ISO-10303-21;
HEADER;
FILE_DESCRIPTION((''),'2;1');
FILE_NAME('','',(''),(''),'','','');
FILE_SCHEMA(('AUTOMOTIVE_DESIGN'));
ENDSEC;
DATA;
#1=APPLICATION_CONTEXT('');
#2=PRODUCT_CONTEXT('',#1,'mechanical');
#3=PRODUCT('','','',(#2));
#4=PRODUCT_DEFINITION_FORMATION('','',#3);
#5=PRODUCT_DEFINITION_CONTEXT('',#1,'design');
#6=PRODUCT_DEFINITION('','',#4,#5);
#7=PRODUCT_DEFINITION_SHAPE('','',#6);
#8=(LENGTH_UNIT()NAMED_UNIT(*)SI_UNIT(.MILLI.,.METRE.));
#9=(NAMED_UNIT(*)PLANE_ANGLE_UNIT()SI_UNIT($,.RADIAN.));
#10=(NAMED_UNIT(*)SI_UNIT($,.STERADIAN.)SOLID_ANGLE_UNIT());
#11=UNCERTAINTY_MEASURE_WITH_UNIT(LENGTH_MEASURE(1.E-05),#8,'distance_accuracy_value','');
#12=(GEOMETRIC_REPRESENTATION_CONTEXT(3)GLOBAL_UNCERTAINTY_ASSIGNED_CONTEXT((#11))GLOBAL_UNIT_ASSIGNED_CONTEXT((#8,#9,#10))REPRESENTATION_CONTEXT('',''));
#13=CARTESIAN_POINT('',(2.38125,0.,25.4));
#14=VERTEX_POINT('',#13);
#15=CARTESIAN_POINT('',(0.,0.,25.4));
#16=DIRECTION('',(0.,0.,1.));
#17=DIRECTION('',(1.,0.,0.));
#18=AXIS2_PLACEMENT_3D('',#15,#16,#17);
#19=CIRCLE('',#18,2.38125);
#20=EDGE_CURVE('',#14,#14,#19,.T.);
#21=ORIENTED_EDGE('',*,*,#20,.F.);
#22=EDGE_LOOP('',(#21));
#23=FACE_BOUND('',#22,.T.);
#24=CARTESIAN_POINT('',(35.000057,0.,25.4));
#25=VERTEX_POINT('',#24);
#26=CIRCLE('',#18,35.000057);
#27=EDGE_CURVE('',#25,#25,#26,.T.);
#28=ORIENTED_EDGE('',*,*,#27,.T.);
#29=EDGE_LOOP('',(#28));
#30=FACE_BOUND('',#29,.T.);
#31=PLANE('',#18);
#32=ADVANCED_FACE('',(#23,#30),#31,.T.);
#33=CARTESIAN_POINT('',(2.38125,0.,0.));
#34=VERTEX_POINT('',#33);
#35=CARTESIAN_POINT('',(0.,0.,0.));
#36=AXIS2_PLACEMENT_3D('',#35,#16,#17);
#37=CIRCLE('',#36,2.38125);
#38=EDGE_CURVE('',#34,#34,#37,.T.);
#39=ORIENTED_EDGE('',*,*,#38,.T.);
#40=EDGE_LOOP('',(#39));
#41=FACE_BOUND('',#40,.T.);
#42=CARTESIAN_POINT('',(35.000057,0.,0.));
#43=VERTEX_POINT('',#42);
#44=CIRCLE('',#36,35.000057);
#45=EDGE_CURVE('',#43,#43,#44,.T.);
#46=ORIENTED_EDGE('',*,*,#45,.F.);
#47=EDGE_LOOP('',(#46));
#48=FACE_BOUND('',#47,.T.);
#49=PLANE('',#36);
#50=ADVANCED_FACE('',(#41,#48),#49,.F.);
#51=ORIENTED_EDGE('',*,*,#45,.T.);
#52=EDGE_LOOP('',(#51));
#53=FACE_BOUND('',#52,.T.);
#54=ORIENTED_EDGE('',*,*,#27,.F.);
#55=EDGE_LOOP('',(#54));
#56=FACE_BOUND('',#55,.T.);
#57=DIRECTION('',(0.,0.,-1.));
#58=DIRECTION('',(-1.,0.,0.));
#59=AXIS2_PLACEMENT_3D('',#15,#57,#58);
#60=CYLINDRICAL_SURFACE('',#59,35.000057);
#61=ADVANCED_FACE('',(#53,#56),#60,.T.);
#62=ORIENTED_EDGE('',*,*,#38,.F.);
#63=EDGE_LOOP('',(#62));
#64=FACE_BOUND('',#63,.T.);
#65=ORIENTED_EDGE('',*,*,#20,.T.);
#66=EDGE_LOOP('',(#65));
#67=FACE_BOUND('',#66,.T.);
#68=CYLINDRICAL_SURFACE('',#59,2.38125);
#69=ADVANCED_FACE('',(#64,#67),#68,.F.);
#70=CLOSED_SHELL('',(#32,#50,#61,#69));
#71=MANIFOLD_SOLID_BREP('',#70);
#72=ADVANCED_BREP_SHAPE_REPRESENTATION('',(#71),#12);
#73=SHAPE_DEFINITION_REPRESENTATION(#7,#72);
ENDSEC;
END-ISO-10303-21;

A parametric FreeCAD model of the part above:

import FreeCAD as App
import Part
import Sketcher
from FreeCAD import Vector
Q = App.Units.Quantity

doc = App.newDocument("Part")
body = doc.addObject("PartDesign::Body", "Body")

sketch1 = body.newObject("Sketcher::SketchObject", "Sketch")
sketch1.AttachmentSupport = (doc.getObject("XY_Plane"), [""])
sketch1.MapMode = "FlatFace"
sketch1.addGeometry(Part.Circle(Vector(0, 0, 0), Vector(0, 0, 1), 35), False)
sketch1.addGeometry(Part.Circle(Vector(0, 0, 0), Vector(0, 0, 1), 2.4), False)
sketch1.addConstraint(Sketcher.Constraint("Coincident", 0, 3, -1, 1))
sketch1.addConstraint(Sketcher.Constraint("Coincident", 1, 3, -1, 1))
sketch1.addConstraint(Sketcher.Constraint("Diameter", 1, Q("0.1875 in")))
sketch1.addConstraint(Sketcher.Constraint("Diameter", 0, 70.000114))
pad1 = body.newObject("PartDesign::Pad", "Pad")
pad1.Profile = sketch1
pad1.Length = Q("1 in")

doc.recompute()
